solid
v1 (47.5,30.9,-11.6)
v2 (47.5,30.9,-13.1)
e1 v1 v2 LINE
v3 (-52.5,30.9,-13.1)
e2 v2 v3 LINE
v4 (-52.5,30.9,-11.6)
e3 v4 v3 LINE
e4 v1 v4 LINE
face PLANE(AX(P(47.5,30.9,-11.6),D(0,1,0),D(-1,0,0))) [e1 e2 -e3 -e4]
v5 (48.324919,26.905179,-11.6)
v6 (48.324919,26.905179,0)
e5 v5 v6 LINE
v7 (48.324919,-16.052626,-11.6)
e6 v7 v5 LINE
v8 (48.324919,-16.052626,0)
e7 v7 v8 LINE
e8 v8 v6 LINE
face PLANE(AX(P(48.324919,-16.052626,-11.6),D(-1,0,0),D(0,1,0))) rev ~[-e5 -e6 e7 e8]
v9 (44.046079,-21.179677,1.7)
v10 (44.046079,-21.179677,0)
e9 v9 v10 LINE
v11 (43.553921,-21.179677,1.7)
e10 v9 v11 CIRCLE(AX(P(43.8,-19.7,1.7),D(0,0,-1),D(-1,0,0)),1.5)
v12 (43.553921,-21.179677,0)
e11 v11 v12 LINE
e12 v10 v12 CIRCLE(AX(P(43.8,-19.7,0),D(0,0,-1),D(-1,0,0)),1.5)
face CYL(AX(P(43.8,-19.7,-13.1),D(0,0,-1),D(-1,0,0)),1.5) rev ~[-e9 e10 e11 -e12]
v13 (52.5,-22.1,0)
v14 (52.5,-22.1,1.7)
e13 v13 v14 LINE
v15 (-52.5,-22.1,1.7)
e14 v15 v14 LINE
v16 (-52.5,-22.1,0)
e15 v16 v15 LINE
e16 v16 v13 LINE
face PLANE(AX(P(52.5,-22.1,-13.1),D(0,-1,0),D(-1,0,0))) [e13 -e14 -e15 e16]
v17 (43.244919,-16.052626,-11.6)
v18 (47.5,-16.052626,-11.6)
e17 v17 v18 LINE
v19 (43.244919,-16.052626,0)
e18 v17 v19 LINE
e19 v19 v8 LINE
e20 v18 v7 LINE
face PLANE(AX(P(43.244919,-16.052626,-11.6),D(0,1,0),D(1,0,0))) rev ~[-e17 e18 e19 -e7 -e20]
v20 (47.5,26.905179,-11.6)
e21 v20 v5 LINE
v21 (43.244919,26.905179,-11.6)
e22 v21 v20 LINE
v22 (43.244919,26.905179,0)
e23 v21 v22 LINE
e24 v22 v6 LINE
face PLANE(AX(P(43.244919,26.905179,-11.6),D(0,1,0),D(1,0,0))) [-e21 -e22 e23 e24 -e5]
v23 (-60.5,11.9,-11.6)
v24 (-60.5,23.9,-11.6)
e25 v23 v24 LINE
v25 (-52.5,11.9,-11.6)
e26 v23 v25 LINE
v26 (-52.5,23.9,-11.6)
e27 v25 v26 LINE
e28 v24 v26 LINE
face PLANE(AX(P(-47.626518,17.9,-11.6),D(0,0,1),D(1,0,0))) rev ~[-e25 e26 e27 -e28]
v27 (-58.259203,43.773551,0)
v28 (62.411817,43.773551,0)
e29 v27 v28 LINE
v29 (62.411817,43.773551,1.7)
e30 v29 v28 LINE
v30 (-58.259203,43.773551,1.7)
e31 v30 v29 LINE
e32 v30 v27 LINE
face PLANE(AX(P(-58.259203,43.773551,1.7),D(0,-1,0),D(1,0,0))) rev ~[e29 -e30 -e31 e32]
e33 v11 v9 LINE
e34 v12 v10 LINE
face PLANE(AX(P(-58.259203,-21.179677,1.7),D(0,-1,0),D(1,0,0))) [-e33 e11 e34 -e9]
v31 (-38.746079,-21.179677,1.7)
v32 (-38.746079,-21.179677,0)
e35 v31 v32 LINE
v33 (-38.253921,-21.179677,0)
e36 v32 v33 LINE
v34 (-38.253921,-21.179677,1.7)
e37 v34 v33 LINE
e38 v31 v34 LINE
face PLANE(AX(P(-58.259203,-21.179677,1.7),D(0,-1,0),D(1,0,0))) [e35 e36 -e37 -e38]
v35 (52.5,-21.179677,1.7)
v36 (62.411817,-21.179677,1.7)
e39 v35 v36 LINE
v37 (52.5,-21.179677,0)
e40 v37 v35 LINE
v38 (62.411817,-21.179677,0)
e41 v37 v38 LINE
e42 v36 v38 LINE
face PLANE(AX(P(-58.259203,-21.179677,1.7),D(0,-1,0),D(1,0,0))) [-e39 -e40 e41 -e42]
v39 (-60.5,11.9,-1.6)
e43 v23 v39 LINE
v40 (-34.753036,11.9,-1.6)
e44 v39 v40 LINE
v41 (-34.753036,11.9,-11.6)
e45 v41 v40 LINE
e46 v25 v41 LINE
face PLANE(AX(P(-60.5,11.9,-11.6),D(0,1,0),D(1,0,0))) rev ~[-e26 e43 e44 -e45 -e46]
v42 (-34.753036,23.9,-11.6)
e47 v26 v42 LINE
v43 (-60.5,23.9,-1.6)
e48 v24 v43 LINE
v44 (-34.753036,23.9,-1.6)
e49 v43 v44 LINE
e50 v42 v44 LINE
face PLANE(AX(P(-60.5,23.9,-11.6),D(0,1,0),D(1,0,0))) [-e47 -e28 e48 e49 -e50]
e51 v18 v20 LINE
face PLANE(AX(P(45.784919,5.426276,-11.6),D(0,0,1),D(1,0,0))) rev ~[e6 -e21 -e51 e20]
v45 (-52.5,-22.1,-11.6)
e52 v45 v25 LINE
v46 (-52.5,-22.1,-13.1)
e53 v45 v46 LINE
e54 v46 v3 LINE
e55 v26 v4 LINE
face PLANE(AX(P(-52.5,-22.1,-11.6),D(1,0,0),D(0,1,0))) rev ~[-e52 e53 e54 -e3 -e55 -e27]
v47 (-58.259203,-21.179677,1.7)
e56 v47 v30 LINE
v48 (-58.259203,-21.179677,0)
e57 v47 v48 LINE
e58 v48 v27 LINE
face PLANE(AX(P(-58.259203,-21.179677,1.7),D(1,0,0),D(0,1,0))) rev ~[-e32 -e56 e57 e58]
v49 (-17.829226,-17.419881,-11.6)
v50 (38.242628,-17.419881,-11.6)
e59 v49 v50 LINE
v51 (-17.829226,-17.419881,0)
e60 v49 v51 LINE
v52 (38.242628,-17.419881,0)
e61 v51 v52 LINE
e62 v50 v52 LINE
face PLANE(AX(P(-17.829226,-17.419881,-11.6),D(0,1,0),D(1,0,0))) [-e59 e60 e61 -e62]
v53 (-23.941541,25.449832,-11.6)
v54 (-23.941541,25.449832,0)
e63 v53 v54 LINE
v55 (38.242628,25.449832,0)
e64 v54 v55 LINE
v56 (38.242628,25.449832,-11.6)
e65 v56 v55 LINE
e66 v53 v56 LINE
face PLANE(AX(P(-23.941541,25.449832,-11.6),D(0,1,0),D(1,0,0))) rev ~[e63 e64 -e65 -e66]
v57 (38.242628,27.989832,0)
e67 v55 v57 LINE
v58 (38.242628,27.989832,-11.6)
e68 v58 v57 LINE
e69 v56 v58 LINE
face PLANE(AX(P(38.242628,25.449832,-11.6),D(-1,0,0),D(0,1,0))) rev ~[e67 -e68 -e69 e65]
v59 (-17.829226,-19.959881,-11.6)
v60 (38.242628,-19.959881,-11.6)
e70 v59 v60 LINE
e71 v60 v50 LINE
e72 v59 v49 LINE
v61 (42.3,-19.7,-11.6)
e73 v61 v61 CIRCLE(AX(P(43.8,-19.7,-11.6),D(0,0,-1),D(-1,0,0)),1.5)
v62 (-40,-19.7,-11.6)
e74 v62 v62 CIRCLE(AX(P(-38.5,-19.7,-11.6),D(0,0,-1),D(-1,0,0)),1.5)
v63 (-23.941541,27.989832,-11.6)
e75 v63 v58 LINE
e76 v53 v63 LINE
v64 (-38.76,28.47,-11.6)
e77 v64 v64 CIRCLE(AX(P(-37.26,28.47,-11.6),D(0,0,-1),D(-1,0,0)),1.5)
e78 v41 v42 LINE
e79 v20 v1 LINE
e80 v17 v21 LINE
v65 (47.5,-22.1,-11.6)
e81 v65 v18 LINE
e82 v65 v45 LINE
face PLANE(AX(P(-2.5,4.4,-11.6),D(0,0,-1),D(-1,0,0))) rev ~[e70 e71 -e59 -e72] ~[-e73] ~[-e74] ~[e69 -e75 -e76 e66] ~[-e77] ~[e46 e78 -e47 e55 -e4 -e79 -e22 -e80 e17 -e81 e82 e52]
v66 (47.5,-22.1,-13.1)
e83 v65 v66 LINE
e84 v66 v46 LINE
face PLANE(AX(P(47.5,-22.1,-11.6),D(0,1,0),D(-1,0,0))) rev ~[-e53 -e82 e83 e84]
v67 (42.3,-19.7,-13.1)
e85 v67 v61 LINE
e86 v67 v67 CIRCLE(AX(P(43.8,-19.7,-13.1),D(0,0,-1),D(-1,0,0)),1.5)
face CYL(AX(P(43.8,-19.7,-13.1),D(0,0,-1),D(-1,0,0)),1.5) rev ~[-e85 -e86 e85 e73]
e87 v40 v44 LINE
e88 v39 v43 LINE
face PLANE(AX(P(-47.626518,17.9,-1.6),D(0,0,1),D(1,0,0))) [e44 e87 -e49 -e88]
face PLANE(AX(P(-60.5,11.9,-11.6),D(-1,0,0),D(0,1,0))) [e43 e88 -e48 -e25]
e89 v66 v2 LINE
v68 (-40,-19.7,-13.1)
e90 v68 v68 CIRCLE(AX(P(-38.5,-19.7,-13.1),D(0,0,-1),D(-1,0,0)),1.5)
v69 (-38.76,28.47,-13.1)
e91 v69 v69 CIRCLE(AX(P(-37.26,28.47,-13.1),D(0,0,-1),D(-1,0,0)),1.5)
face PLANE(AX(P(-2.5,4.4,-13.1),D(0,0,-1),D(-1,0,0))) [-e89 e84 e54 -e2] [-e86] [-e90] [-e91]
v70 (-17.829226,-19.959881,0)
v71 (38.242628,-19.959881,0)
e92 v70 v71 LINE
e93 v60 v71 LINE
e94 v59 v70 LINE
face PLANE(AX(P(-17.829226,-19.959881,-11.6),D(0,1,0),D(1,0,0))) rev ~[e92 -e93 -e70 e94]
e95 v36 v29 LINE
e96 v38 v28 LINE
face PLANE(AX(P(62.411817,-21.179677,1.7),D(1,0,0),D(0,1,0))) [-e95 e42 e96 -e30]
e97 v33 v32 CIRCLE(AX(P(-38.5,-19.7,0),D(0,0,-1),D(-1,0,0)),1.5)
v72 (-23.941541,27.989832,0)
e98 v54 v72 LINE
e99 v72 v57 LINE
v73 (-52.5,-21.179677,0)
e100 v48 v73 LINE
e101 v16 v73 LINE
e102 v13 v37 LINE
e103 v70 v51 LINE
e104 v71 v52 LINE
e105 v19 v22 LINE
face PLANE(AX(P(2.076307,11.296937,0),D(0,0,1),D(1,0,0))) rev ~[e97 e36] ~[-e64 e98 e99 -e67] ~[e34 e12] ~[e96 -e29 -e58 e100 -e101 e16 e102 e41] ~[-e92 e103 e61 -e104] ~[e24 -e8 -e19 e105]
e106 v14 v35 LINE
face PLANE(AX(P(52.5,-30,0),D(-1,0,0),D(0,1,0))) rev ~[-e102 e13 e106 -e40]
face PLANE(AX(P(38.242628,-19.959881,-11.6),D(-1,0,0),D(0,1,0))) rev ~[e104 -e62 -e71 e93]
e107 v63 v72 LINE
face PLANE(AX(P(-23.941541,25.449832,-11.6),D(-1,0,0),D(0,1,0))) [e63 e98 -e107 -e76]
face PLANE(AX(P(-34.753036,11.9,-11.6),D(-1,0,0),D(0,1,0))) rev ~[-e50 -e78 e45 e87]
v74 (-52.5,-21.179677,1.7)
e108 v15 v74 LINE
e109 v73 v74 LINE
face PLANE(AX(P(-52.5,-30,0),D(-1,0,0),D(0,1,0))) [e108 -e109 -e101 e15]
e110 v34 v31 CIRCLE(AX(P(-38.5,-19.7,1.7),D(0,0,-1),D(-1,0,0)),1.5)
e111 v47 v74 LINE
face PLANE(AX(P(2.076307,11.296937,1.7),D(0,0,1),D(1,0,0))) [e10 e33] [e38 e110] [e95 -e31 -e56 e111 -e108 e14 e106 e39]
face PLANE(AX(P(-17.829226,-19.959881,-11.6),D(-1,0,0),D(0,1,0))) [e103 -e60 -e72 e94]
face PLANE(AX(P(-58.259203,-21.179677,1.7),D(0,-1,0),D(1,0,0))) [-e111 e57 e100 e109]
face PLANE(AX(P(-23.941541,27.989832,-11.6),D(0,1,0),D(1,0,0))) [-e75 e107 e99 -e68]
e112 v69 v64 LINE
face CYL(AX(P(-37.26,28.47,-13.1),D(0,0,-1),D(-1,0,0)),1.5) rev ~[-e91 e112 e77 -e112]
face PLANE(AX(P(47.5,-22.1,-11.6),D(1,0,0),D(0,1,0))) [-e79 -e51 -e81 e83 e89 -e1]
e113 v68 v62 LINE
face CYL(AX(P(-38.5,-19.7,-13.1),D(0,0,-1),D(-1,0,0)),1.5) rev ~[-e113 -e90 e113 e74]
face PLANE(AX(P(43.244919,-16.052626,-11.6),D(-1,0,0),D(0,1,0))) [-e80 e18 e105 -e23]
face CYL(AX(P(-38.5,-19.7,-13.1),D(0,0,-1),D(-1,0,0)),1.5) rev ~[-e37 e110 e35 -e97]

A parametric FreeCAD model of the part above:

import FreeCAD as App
import Part
import Sketcher

doc = App.newDocument("Part")
body = doc.addObject("PartDesign::Body", "Body")

# Sketch on XY plane
sketch1 = body.newObject("Sketcher::SketchObject", "Sketch")
sketch1.AttachmentSupport = (doc.getObject("XY_Plane"), [""])
sketch1.MapMode = "FlatFace"
sketch1.addGeometry(Part.LineSegment(App.Vector(-52, 30, 0), App.Vector(-52, -30, 0)), False)
sketch1.addGeometry(Part.LineSegment(App.Vector(-52, -30, 0), App.Vector(52, -30, 0)), False)
sketch1.addGeometry(Part.LineSegment(App.Vector(52, -30, 0), App.Vector(52, 30, 0)), False)
sketch1.addGeometry(Part.LineSegment(App.Vector(52, 30, 0), App.Vector(-52, 30, 0)), False)
sketch1.addConstraint(Sketcher.Constraint("Coincident", 0, 2, 1, 1))
sketch1.addConstraint(Sketcher.Constraint("Coincident", 1, 2, 2, 1))
sketch1.addConstraint(Sketcher.Constraint("Coincident", 2, 2, 3, 1))
sketch1.addConstraint(Sketcher.Constraint("Coincident", 3, 2, 0, 1))
sketch1.addConstraint(Sketcher.Constraint("Vertical", 0))
sketch1.addConstraint(Sketcher.Constraint("Horizontal", 1))
sketch1.addConstraint(Sketcher.Constraint("Vertical", 2))
sketch1.addConstraint(Sketcher.Constraint("Horizontal", 3))
sketch1.addConstraint(Sketcher.Constraint("Symmetric", 0, 2, 2, 2, -1, 1))
sketch1.addConstraint(Sketcher.Constraint("DistanceX", 1, 1, 1, 2, 105.0))
sketch1.addConstraint(Sketcher.Constraint("DistanceY", 0, 2, 0, 1, 60.0))
pad1 = body.newObject("PartDesign::Pad", "Pad")
pad1.Profile = sketch1
pad1.Length = 1.7
body2 = doc.addObject("PartDesign::Body", "Body001")

# Sketch on XY plane
sketch2 = body2.newObject("Sketcher::SketchObject", "Sketch001")
sketch2.AttachmentSupport = (doc.getObject("XY_Plane001"), [""])
sketch2.MapMode = "FlatFace"
sketch2.AttachmentOffset = App.Placement(App.Vector(0, 0, -11.6), App.Rotation())
sketch2.addGeometry(Part.LineSegment(App.Vector(48, 31, 0), App.Vector(48, -22, 0)), False)
sketch2.addGeometry(Part.LineSegment(App.Vector(48, -22, 0), App.Vector(-52, -22, 0)), False)
sketch2.addGeometry(Part.LineSegment(App.Vector(-52, -22, 0), App.Vector(-52, 31, 0)), False)
sketch2.addGeometry(Part.LineSegment(App.Vector(-52, 31, 0), App.Vector(48, 31, 0)), False)
sketch2.addConstraint(Sketcher.Constraint("Coincident", 0, 2, 1, 1))
sketch2.addConstraint(Sketcher.Constraint("Coincident", 1, 2, 2, 1))
sketch2.addConstraint(Sketcher.Constraint("Coincident", 2, 2, 3, 1))
sketch2.addConstraint(Sketcher.Constraint("Coincident", 3, 2, 0, 1))
sketch2.addConstraint(Sketcher.Constraint("Vertical", 0))
sketch2.addConstraint(Sketcher.Constraint("Horizontal", 1))
sketch2.addConstraint(Sketcher.Constraint("Vertical", 2))
sketch2.addConstraint(Sketcher.Constraint("Horizontal", 3))
sketch2.addConstraint(Sketcher.Constraint("DistanceX", 1, 2, 1, 1, 100.0))
sketch2.addConstraint(Sketcher.Constraint("DistanceY", 0, 2, 0, 1, 53.0))
sketch2.addConstraint(Sketcher.Constraint("DistanceX", -1, 1, 0, 2, 47.5))
sketch2.addConstraint(Sketcher.Constraint("DistanceY", 0, 2, -1, 1, 22.1))
pad2 = body2.newObject("PartDesign::Pad", "Pad001")
pad2.Profile = sketch2
pad2.Length = 1.5
pad2.Reversed = True
body.AllowCompound = True
doc.recompute()

boolean = body.newObject("PartDesign::Boolean", "Boolean")
boolean.Type = "Fuse"
boolean.addObjects([body2])

# Sketch on XY plane
sketch3 = body.newObject("Sketcher::SketchObject", "Sketch002")
sketch3.AttachmentSupport = (doc.getObject("XY_Plane"), [""])
sketch3.MapMode = "FlatFace"
sketch3.AttachmentOffset = App.Placement(App.Vector(0, 0, -11.6), App.Rotation())
sketch3.addGeometry(Part.LineSegment(App.Vector(-23.9, 28, 0), App.Vector(-23.9, 25.4, 0)), False)
sketch3.addGeometry(Part.LineSegment(App.Vector(-23.9, 25.4, 0), App.Vector(38.2, 25.4, 0)), False)
sketch3.addGeometry(Part.LineSegment(App.Vector(38.2, 25.4, 0), App.Vector(38.2, 28, 0)), False)
sketch3.addGeometry(Part.LineSegment(App.Vector(38.2, 28, 0), App.Vector(-23.9, 28, 0)), False)
sketch3.addGeometry(Part.LineSegment(App.Vector(43.2, 26.9, 0), App.Vector(43.2, -16.1, 0)), False)
sketch3.addGeometry(Part.LineSegment(App.Vector(43.2, -16.1, 0), App.Vector(48.3, -16.1, 0)), False)
sketch3.addGeometry(Part.LineSegment(App.Vector(48.3, -16.1, 0), App.Vector(48.3, 26.9, 0)), False)
sketch3.addGeometry(Part.LineSegment(App.Vector(48.3, 26.9, 0), App.Vector(43.2, 26.9, 0)), False)
sketch3.addGeometry(Part.LineSegment(App.Vector(-17.8, -17.4, 0), App.Vector(-17.8, -20, 0)), False)
sketch3.addGeometry(Part.LineSegment(App.Vector(-17.8, -20, 0), App.Vector(38.2, -20, 0)), False)
sketch3.addGeometry(Part.LineSegment(App.Vector(38.2, -20, 0), App.Vector(38.2, -17.4, 0)), False)
sketch3.addGeometry(Part.LineSegment(App.Vector(38.2, -17.4, 0), App.Vector(-17.8, -17.4, 0)), False)
sketch3.addConstraint(Sketcher.Constraint("Coincident", 0, 2, 1, 1))
sketch3.addConstraint(Sketcher.Constraint("Coincident", 1, 2, 2, 1))
sketch3.addConstraint(Sketcher.Constraint("Coincident", 2, 2, 3, 1))
sketch3.addConstraint(Sketcher.Constraint("Coincident", 3, 2, 0, 1))
sketch3.addConstraint(Sketcher.Constraint("Coincident", 4, 2, 5, 1))
sketch3.addConstraint(Sketcher.Constraint("Coincident", 5, 2, 6, 1))
sketch3.addConstraint(Sketcher.Constraint("Coincident", 6, 2, 7, 1))
sketch3.addConstraint(Sketcher.Constraint("Coincident", 7, 2, 4, 1))
sketch3.addConstraint(Sketcher.Constraint("Coincident", 8, 2, 9, 1))
sketch3.addConstraint(Sketcher.Constraint("Coincident", 9, 2, 10, 1))
sketch3.addConstraint(Sketcher.Constraint("Coincident", 10, 2, 11, 1))
sketch3.addConstraint(Sketcher.Constraint("Coincident", 11, 2, 8, 1))
sketch3.addConstraint(Sketcher.Constraint("Vertical", 0))
sketch3.addConstraint(Sketcher.Constraint("Horizontal", 1))
sketch3.addConstraint(Sketcher.Constraint("Vertical", 2))
sketch3.addConstraint(Sketcher.Constraint("Horizontal", 3))
sketch3.addConstraint(Sketcher.Constraint("Vertical", 4))
sketch3.addConstraint(Sketcher.Constraint("Horizontal", 5))
sketch3.addConstraint(Sketcher.Constraint("Vertical", 6))
sketch3.addConstraint(Sketcher.Constraint("Horizontal", 7))
sketch3.addConstraint(Sketcher.Constraint("Vertical", 8))
sketch3.addConstraint(Sketcher.Constraint("Horizontal", 9))
sketch3.addConstraint(Sketcher.Constraint("Vertical", 10))
sketch3.addConstraint(Sketcher.Constraint("Horizontal", 11))
sketch3.addConstraint(Sketcher.Constraint("Vertical", 2, 2, 9, 2))
sketch3.addConstraint(Sketcher.Constraint("Equal", 2, 8))
sketch3.addConstraint(Sketcher.Constraint("DistanceX", 5, 1, 5, 2, 5.08))
sketch3.addConstraint(Sketcher.Constraint("DistanceY", 0, 2, 0, 1, 2.54))
sketch3.addConstraint(Sketcher.Constraint("DistanceX", 1, 1, 1, 2, 62.184169))
sketch3.addConstraint(Sketcher.Constraint("DistanceX", 9, 1, 9, 2, 56.071855))
sketch3.addConstraint(Sketcher.Constraint("DistanceY", 4, 2, 4, 1, 42.957805))
sketch3.addConstraint(Sketcher.Constraint("DistanceX", 0, 2, -1, 1, 23.941541))
sketch3.addConstraint(Sketcher.Constraint("DistanceX", -1, 1, 4, 2, 43.244919))
sketch3.addConstraint(Sketcher.Constraint("DistanceY", -1, 1, 6, 2, 26.905179))
sketch3.addConstraint(Sketcher.Constraint("DistanceY", 8, 2, -1, 1, 19.959881))
sketch3.addConstraint(Sketcher.Constraint("DistanceY", 4, 2, 1, 2, 41.502458))
pad3 = body.newObject("PartDesign::Pad", "Pad002")
pad3.Profile = sketch3
pad3.Length = 11.6

# Sketch on XY plane
sketch4 = body.newObject("Sketcher::SketchObject", "Sketch003")
sketch4.AttachmentSupport = (doc.getObject("XY_Plane"), [""])
sketch4.MapMode = "FlatFace"
sketch4.AttachmentOffset = App.Placement(App.Vector(0, 0, -11.6), App.Rotation())
sketch4.addGeometry(Part.LineSegment(App.Vector(-61, 24, 0), App.Vector(-61, 12, 0)), False)
sketch4.addGeometry(Part.LineSegment(App.Vector(-61, 12, 0), App.Vector(-35, 12, 0)), False)
sketch4.addGeometry(Part.LineSegment(App.Vector(-35, 12, 0), App.Vector(-35, 24, 0)), False)
sketch4.addGeometry(Part.LineSegment(App.Vector(-35, 24, 0), App.Vector(-61, 24, 0)), False)
sketch4.addConstraint(Sketcher.Constraint("Coincident", 0, 2, 1, 1))
sketch4.addConstraint(Sketcher.Constraint("Coincident", 1, 2, 2, 1))
sketch4.addConstraint(Sketcher.Constraint("Coincident", 2, 2, 3, 1))
sketch4.addConstraint(Sketcher.Constraint("Coincident", 3, 2, 0, 1))
sketch4.addConstraint(Sketcher.Constraint("Vertical", 0))
sketch4.addConstraint(Sketcher.Constraint("Horizontal", 1))
sketch4.addConstraint(Sketcher.Constraint("Vertical", 2))
sketch4.addConstraint(Sketcher.Constraint("Horizontal", 3))
sketch4.addConstraint(Sketcher.Constraint("DistanceY", 0, 2, 0, 1, 12.0))
sketch4.addConstraint(Sketcher.Constraint("DistanceX", 0, 2, -1, 1, 60.5))
sketch4.addConstraint(Sketcher.Constraint("DistanceY", -1, 1, 0, 2, 11.9))
sketch4.addConstraint(Sketcher.Constraint("DistanceX", 1, 1, 1, 2, 25.746964))
pad4 = body.newObject("PartDesign::Pad", "Pad003")
pad4.Profile = sketch4
pad4.Length = 10

# Sketch on XY plane
sketch5 = body.newObject("Sketcher::SketchObject", "Sketch004")
sketch5.AttachmentSupport = (doc.getObject("XY_Plane"), [""])
sketch5.MapMode = "FlatFace"
sketch5.AttachmentOffset = App.Placement(App.Vector(0, 0, -13.1), App.Rotation())
sketch5.addGeometry(Part.Circle(App.Vector(-37.3, 28.5, 0), App.Vector(0, 0, 1), 1.5), False)
sketch5.addGeometry(Part.Circle(App.Vector(-38.5, -19.7, 0), App.Vector(0, 0, 1), 1.5), False)
sketch5.addGeometry(Part.Circle(App.Vector(43.8, -19.7, 0), App.Vector(0, 0, 1), 1.5), False)
sketch5.addGeometry(Part.LineSegment(App.Vector(52.5, -22.1, 0), App.Vector(52.5, -30, 0)), False)
sketch5.addGeometry(Part.LineSegment(App.Vector(52.5, -30, 0), App.Vector(-52.5, -30, 0)), False)
sketch5.addGeometry(Part.LineSegment(App.Vector(-52.5, -30, 0), App.Vector(-52.5, -22.1, 0)), False)
sketch5.addGeometry(Part.LineSegment(App.Vector(-52.5, -22.1, 0), App.Vector(52.5, -22.1, 0)), False)
sketch5.addConstraint(Sketcher.Constraint("Coincident", 3, 2, 4, 1))
sketch5.addConstraint(Sketcher.Constraint("Coincident", 4, 2, 5, 1))
sketch5.addConstraint(Sketcher.Constraint("Coincident", 5, 2, 6, 1))
sketch5.addConstraint(Sketcher.Constraint("Coincident", 6, 2, 3, 1))
sketch5.addConstraint(Sketcher.Constraint("Vertical", 3))
sketch5.addConstraint(Sketcher.Constraint("Horizontal", 4))
sketch5.addConstraint(Sketcher.Constraint("Vertical", 5))
sketch5.addConstraint(Sketcher.Constraint("Horizontal", 6))
sketch5.addConstraint(Sketcher.Constraint("Equal", 0, 1))
sketch5.addConstraint(Sketcher.Constraint("Equal", 1, 2))
sketch5.addConstraint(Sketcher.Constraint("Horizontal", 1, 3, 2, 3))
sketch5.addConstraint(Sketcher.Constraint("Diameter", 0, 3.0))
sketch5.addConstraint(Sketcher.Constraint("DistanceX", 4, 2, 4, 1, 105.0))
sketch5.addConstraint(Sketcher.Constraint("DistanceY", 3, 2, 3, 1, 7.9))
sketch5.addConstraint(Sketcher.Constraint("DistanceY", 3, 2, -1, 1, 30.0))
sketch5.addConstraint(Sketcher.Constraint("DistanceX", 1, 3, 3, 2, 91.0))
sketch5.addConstraint(Sketcher.Constraint("DistanceX", 1, 3, -1, 1, 38.5))
sketch5.addConstraint(Sketcher.Constraint("DistanceY", 1, 3, -1, 1, 19.7))
sketch5.addConstraint(Sketcher.Constraint("DistanceX", -1, 1, 2, 3, 43.8))
sketch5.addConstraint(Sketcher.Constraint("DistanceX", 0, 3, -1, 1, 37.26))
sketch5.addConstraint(Sketcher.Constraint("DistanceY", -1, 1, 0, 3, 28.47))
pocket1 = body.newObject("PartDesign::Pocket", "Pocket")
pocket1.Profile = sketch5
pocket1.Type = "ThroughAll"
pocket1.Reversed = True

# Sketch on XY plane
sketch6 = body.newObject("Sketcher::SketchObject", "Sketch005")
sketch6.AttachmentSupport = (doc.getObject("XY_Plane"), [""])
sketch6.MapMode = "FlatFace"
sketch6.AttachmentOffset = App.Placement(App.Vector(0, 0, 1.7), App.Rotation())
sketch6.addGeometry(Part.LineSegment(App.Vector(-58, 44, 0), App.Vector(-58, -21, 0)), False)
sketch6.addGeometry(Part.LineSegment(App.Vector(-58, -21, 0), App.Vector(62, -21, 0)), False)
sketch6.addGeometry(Part.LineSegment(App.Vector(62, -21, 0), App.Vector(62, 44, 0)), False)
sketch6.addGeometry(Part.LineSegment(App.Vector(62, 44, 0), App.Vector(-58, 44, 0)), False)
sketch6.addConstraint(Sketcher.Constraint("Coincident", 0, 2, 1, 1))
sketch6.addConstraint(Sketcher.Constraint("Coincident", 1, 2, 2, 1))
sketch6.addConstraint(Sketcher.Constraint("Coincident", 2, 2, 3, 1))
sketch6.addConstraint(Sketcher.Constraint("Coincident", 3, 2, 0, 1))
sketch6.addConstraint(Sketcher.Constraint("Vertical", 0))
sketch6.addConstraint(Sketcher.Constraint("Horizontal", 1))
sketch6.addConstraint(Sketcher.Constraint("Vertical", 2))
sketch6.addConstraint(Sketcher.Constraint("Horizontal", 3))
sketch6.addConstraint(Sketcher.Constraint("DistanceX", 1, 1, 1, 2, 120.67102))
sketch6.addConstraint(Sketcher.Constraint("DistanceY", 0, 2, 0, 1, 64.953229))
sketch6.addConstraint(Sketcher.Constraint("DistanceY", -1, 1, 2, 2, 43.773551))
sketch6.addConstraint(Sketcher.Constraint("DistanceX", 0, 2, -1, 1, 58.259203))
pad5 = body.newObject("PartDesign::Pad", "Pad004")
pad5.Profile = sketch6
pad5.Length = 1.7
pad5.Reversed = True

doc.recompute()
